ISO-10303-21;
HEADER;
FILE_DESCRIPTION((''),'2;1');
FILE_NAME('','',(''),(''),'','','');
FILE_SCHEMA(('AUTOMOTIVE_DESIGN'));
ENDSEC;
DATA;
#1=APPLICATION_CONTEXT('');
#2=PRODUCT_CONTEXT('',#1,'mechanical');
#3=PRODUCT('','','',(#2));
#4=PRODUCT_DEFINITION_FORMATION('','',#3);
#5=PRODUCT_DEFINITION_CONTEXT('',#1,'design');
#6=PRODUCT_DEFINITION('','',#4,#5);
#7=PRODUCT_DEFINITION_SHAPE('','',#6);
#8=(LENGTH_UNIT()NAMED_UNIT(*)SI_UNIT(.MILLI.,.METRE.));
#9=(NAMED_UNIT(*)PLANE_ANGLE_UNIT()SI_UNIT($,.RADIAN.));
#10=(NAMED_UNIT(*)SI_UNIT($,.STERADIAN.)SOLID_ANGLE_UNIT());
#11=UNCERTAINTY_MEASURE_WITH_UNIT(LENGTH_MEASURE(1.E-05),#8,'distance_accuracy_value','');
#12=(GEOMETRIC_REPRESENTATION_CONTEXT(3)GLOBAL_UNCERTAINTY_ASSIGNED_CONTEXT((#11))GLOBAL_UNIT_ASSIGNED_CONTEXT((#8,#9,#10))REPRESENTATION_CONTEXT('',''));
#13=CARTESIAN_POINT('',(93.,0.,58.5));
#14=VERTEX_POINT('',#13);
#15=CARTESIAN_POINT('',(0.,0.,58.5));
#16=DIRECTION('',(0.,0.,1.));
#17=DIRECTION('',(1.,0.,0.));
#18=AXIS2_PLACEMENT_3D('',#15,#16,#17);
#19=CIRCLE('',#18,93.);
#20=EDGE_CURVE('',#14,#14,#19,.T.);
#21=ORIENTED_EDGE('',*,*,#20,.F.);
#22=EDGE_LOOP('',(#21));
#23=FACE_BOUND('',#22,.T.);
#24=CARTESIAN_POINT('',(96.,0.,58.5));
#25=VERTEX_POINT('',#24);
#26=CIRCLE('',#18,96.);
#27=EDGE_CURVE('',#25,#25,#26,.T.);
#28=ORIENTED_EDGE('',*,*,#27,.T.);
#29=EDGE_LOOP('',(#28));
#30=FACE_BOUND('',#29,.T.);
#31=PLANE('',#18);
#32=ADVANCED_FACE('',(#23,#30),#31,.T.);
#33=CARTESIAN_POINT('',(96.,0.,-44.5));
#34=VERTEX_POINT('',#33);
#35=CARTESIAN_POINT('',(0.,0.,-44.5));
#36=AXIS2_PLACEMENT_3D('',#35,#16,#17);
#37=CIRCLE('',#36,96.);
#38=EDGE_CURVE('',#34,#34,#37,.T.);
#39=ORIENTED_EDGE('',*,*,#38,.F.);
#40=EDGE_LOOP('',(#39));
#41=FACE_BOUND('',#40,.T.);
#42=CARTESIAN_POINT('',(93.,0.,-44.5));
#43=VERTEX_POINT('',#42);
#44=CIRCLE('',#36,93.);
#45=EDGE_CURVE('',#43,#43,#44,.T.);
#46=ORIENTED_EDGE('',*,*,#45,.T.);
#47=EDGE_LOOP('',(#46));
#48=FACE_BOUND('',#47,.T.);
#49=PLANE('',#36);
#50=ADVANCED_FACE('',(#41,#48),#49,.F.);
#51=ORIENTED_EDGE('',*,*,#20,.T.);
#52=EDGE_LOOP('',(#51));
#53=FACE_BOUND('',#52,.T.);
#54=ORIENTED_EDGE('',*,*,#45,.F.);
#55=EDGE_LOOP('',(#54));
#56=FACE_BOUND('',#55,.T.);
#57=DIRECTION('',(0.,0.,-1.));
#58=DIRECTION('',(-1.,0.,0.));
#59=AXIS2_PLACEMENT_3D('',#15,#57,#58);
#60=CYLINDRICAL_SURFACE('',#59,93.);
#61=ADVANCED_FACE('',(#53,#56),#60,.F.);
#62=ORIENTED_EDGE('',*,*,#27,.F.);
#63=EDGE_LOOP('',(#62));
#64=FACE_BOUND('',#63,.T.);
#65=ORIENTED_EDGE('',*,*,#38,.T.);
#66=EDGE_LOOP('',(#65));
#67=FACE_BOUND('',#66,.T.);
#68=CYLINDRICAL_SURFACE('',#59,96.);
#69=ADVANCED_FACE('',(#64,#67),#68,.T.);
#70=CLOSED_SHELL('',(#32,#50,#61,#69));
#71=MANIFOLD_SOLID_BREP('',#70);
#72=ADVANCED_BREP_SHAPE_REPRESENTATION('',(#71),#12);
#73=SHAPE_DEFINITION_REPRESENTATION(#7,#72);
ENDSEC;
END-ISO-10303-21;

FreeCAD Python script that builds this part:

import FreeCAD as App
import Part
import Sketcher

doc = App.newDocument("Part")
params = doc.addObject("Spreadsheet::Sheet", "Params")
for row, (alias, value) in enumerate([
    ("sketch1_diameter", "192 mm"),
    ("sketch1_diameter2", "186 mm"),
    ("pad1_length", "103 mm"),
], start=1):
    params.set(f"A{row}", alias)
    params.set(f"B{row}", "=" + value)
    params.setAlias(f"B{row}", alias)

body = doc.addObject("PartDesign::Body", "Body")

# Sketch on XY plane
sketch1 = body.newObject("Sketcher::SketchObject", "Sketch")
sketch1.AttachmentSupport = (doc.getObject("XY_Plane"), [""])
sketch1.MapMode = "FlatFace"
sketch1.AttachmentOffset = App.Placement(App.Vector(0, 0, -44.5), App.Rotation())
sketch1.addGeometry(Part.Circle(App.Vector(0, 0, 0), App.Vector(0, 0, 1), 96), False)
sketch1.addGeometry(Part.Circle(App.Vector(0, 0, 0), App.Vector(0, 0, 1), 93), False)
sketch1.addConstraint(Sketcher.Constraint("Coincident", 0, 3, -1, 1))
sketch1.addConstraint(Sketcher.Constraint("Coincident", 1, 3, -1, 1))
sketch1.addConstraint(Sketcher.Constraint("Diameter", 0, 192.0))
sketch1.addConstraint(Sketcher.Constraint("Diameter", 1, 186.0))
sketch1.setExpression("Constraints[2]", "Params.sketch1_diameter")
sketch1.setExpression("Constraints[3]", "Params.sketch1_diameter2")
pad1 = body.newObject("PartDesign::Pad", "Pad")
pad1.Profile = sketch1
pad1.setExpression("Length", "Params.pad1_length")

doc.recompute()
